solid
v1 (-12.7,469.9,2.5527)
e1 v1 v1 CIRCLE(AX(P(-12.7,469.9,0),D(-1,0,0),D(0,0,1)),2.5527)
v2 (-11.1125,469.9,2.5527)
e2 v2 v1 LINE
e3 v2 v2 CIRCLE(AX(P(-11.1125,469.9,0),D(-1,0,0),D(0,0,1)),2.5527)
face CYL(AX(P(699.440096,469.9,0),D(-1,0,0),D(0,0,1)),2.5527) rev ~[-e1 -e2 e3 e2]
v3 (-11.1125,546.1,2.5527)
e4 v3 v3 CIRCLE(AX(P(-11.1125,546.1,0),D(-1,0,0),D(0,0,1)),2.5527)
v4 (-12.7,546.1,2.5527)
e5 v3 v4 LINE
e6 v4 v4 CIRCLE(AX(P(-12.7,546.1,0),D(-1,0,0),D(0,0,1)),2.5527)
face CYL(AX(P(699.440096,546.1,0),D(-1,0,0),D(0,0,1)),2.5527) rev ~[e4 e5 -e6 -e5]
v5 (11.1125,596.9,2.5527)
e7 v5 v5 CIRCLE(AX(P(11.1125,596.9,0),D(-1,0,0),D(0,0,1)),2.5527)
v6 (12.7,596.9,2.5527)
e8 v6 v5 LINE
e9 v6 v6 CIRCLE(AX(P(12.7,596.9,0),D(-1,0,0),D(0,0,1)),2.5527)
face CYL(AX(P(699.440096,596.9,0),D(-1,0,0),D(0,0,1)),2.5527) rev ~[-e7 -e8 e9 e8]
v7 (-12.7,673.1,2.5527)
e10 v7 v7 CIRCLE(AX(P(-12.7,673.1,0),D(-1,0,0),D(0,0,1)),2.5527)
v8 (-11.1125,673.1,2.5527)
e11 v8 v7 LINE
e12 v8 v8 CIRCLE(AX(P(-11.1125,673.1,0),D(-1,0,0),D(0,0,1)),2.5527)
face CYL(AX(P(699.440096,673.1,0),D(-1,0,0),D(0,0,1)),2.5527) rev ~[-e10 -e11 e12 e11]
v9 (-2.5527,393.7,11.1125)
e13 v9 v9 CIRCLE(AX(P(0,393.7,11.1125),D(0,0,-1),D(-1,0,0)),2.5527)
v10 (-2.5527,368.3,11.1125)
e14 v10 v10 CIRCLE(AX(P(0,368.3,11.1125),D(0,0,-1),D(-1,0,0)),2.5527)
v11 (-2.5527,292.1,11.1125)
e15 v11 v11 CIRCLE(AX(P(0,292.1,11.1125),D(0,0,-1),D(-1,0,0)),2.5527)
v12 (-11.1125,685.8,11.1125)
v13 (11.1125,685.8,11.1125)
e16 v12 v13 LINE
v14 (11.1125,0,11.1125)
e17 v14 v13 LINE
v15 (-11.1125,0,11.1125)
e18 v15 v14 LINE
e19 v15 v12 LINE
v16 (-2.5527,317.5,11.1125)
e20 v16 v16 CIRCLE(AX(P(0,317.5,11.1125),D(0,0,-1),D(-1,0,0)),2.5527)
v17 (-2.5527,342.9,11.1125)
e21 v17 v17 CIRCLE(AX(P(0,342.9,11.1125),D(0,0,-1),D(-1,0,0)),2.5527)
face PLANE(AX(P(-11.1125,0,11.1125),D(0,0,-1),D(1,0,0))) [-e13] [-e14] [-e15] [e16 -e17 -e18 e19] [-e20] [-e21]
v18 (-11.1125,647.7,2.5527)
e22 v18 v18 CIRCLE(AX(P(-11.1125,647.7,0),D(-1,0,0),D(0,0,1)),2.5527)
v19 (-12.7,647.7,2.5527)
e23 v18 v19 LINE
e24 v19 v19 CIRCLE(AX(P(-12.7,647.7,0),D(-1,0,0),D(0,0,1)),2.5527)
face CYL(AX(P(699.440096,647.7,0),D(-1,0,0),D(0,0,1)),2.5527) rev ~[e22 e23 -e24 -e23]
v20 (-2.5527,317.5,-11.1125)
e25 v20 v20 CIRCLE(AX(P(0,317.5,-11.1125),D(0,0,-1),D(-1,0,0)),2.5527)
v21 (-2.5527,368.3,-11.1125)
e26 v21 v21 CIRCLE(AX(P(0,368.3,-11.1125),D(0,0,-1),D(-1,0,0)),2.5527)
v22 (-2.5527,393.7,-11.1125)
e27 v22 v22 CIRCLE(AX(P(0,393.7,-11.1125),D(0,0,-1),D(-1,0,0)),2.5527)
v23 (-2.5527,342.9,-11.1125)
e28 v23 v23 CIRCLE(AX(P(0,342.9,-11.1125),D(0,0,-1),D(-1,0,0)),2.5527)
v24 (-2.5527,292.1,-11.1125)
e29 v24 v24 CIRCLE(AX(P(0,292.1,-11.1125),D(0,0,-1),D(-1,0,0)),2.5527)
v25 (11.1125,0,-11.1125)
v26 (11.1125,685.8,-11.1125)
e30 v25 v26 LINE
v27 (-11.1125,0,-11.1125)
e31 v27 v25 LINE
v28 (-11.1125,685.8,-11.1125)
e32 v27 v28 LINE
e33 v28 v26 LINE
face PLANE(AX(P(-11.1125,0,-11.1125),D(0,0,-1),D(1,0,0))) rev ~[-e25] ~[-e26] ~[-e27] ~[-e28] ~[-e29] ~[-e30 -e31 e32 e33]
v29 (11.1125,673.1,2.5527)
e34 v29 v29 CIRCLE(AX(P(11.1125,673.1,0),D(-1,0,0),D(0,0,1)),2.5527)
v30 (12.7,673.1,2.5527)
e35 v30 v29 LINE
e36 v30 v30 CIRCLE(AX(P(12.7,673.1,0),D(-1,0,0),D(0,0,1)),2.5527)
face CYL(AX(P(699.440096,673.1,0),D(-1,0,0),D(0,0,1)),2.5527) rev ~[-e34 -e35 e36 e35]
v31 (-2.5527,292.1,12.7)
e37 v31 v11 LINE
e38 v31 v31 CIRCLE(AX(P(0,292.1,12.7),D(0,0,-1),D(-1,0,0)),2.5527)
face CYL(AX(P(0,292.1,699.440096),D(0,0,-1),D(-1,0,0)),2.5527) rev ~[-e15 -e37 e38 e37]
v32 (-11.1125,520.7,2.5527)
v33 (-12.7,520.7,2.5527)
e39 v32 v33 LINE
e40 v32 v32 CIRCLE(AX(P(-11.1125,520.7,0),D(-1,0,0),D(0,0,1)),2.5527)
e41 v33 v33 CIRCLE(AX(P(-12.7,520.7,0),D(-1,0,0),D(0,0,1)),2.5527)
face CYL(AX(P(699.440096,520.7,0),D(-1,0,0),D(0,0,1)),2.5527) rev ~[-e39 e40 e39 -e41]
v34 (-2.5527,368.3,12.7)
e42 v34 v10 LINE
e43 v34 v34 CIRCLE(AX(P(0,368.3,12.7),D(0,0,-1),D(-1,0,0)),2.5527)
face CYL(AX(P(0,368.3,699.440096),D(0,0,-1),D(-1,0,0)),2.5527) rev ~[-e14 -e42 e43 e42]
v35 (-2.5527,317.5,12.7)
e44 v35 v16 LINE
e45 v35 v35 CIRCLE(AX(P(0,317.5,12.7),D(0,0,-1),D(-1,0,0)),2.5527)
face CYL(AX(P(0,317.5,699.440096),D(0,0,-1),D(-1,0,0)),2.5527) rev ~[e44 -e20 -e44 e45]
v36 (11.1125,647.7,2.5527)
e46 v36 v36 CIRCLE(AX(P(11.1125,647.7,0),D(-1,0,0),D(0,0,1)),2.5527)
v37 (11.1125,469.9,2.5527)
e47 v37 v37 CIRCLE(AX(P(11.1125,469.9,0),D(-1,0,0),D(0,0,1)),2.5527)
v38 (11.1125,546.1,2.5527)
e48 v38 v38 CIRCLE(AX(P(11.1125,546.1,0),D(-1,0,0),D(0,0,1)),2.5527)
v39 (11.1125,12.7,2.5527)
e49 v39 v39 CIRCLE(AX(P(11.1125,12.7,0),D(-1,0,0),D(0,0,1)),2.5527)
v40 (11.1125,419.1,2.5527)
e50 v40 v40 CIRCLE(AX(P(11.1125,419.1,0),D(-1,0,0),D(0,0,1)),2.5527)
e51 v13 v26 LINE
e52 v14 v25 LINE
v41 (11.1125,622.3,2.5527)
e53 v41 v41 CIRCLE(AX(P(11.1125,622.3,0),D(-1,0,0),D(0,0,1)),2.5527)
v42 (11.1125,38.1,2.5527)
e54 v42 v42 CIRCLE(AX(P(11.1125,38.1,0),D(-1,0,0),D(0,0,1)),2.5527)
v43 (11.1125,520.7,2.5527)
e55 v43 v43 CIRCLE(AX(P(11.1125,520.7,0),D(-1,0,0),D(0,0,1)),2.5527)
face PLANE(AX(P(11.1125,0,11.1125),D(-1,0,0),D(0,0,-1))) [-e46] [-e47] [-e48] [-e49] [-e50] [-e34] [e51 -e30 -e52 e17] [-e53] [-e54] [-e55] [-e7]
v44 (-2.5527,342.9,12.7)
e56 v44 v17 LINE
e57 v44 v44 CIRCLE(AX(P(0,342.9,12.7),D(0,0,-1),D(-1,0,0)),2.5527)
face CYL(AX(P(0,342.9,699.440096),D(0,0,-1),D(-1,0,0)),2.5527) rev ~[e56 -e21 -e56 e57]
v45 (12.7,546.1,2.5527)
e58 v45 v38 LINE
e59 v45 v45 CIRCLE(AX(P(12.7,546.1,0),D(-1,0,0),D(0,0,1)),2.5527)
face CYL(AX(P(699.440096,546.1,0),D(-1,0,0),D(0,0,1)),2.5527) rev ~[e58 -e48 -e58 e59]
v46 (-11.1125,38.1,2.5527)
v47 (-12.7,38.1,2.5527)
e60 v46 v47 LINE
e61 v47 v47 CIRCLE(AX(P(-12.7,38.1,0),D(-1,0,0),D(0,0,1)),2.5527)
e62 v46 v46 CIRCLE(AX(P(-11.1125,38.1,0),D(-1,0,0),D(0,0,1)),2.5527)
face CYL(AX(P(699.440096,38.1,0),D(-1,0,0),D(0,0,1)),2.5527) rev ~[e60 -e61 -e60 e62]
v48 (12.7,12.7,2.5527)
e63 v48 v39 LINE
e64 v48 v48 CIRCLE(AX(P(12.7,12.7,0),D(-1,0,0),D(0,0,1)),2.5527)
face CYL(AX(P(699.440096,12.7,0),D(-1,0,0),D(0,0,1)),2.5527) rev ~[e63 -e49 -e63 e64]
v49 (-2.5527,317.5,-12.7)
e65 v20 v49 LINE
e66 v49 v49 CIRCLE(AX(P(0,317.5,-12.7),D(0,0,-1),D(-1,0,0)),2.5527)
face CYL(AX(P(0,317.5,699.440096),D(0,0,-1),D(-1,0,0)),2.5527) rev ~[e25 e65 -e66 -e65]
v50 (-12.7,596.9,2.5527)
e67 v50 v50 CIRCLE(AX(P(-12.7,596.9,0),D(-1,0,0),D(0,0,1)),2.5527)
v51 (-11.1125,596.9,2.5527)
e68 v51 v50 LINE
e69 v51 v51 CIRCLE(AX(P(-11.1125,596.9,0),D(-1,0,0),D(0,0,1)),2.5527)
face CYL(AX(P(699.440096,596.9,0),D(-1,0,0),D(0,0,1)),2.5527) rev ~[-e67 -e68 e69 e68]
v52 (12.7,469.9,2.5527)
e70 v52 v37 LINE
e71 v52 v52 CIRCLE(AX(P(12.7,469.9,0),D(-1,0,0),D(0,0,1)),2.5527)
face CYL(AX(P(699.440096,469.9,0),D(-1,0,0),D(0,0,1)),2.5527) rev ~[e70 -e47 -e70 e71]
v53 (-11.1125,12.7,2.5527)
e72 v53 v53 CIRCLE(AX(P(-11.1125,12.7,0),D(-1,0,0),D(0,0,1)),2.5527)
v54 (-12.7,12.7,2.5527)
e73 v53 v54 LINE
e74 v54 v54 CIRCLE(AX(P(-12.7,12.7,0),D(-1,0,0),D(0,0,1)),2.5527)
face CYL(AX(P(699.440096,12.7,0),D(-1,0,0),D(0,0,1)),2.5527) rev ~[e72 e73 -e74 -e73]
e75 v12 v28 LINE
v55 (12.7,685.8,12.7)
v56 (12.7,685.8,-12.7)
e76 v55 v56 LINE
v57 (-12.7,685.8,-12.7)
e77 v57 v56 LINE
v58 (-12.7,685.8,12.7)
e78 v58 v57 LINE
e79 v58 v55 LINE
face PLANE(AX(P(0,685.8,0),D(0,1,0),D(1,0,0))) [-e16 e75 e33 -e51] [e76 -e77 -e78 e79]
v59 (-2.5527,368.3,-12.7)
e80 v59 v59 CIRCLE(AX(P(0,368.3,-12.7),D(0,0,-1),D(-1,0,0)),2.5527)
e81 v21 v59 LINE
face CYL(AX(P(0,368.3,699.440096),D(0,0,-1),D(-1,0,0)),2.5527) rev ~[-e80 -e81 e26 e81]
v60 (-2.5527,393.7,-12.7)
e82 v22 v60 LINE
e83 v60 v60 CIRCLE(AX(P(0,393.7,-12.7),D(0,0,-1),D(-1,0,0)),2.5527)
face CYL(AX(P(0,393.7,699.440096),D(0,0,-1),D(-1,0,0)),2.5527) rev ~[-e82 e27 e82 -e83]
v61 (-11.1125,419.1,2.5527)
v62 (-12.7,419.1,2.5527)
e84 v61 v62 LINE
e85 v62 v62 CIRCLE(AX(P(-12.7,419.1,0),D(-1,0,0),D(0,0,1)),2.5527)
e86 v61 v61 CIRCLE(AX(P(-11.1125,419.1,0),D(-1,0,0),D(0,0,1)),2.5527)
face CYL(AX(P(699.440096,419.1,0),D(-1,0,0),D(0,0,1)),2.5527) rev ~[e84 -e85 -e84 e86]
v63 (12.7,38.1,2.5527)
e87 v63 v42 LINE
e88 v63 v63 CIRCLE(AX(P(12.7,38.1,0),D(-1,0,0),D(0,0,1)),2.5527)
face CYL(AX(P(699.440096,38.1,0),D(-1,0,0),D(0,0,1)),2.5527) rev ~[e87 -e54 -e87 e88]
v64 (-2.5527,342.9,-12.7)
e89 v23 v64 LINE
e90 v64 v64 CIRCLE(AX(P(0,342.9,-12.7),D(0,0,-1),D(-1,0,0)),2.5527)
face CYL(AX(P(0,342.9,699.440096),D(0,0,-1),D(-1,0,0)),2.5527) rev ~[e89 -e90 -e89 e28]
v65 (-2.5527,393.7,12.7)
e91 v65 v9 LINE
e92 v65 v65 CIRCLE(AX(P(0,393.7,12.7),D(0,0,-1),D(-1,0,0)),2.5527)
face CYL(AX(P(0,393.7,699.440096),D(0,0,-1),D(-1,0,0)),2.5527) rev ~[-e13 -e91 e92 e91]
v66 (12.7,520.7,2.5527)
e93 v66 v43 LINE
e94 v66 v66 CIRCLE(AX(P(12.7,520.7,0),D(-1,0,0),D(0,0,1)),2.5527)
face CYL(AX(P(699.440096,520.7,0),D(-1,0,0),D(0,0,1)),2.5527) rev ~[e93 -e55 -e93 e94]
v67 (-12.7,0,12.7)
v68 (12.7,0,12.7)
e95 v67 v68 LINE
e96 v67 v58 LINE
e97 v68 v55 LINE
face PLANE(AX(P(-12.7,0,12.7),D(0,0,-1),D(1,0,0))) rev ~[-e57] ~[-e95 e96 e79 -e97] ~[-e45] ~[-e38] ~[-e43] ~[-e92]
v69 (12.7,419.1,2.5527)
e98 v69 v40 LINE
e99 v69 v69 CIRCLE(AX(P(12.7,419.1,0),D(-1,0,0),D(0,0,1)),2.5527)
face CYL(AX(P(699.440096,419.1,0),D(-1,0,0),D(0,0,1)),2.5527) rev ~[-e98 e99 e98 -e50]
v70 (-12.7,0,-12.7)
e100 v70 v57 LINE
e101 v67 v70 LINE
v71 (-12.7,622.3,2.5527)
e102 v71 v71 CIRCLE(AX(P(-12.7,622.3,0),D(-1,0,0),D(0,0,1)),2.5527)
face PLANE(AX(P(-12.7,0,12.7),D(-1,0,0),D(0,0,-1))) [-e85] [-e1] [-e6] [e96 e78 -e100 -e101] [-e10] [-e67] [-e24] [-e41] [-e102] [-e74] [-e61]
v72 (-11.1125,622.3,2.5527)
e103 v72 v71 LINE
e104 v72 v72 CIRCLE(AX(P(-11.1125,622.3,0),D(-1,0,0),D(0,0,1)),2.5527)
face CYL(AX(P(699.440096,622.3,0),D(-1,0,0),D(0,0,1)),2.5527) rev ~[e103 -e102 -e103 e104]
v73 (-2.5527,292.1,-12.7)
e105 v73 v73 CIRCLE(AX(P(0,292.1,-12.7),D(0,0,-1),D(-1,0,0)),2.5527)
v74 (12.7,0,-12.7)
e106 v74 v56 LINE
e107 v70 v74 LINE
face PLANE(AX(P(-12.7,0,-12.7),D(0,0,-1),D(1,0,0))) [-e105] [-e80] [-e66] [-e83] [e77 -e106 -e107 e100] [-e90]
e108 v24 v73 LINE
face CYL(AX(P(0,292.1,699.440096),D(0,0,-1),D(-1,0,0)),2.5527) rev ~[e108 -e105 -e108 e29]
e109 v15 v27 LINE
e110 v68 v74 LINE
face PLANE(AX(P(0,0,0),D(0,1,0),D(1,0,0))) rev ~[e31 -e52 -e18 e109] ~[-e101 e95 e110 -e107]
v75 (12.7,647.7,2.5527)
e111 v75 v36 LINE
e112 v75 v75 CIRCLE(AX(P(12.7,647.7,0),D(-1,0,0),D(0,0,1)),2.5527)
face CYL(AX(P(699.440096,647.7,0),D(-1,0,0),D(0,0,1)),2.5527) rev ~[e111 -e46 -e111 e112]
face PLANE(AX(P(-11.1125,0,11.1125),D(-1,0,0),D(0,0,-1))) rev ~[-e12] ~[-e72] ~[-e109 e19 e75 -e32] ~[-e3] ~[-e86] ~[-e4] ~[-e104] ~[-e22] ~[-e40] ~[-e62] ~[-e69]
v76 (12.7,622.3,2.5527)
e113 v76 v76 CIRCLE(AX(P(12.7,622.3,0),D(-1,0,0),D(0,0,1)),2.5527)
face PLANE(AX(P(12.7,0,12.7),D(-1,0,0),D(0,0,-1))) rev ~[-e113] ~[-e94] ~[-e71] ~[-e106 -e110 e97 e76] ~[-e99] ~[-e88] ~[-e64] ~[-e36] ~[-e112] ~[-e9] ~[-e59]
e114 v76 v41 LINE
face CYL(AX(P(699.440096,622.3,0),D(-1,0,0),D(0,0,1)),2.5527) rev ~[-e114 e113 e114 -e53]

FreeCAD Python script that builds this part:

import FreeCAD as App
import Part
import Sketcher
from FreeCAD import Vector
Q = App.Units.Quantity

doc = App.newDocument("Part")
body = doc.addObject("PartDesign::Body", "Body")

# Sketch on XZ plane
sketch1 = doc.addObject("Sketcher::SketchObject", "Sketch")
body.addObject(sketch1)
sketch1.AttachmentSupport = (doc.XZ_Plane, [""])
sketch1.MapMode = "FlatFace"
sketch1.addGeometry([
    Part.LineSegment(Vector(-12.7, -12.7, 0), Vector(-12.7, 12.7, 0)),  # 0
    Part.LineSegment(Vector(-12.7, 12.7, 0), Vector(12.7, 12.7, 0)),  # 1
    Part.LineSegment(Vector(12.7, 12.7, 0), Vector(12.7, -12.7, 0)),  # 2
    Part.LineSegment(Vector(12.7, -12.7, 0), Vector(-12.7, -12.7, 0)),  # 3
    Part.LineSegment(Vector(11.1125, 11.1125, 0), Vector(-11.1125, 11.1125, 0)),  # 4
    Part.LineSegment(Vector(-11.1125, 11.1125, 0), Vector(-11.1125, -11.1125, 0)),  # 5
    Part.LineSegment(Vector(-11.1125, -11.1125, 0), Vector(11.1125, -11.1125, 0)),  # 6
    Part.LineSegment(Vector(11.1125, -11.1125, 0), Vector(11.1125, 11.1125, 0)),  # 7
], False)
sketch1.addConstraint([
    Sketcher.Constraint("Coincident", 0, 2, 1, 1),
    Sketcher.Constraint("Coincident", 1, 2, 2, 1),
    Sketcher.Constraint("Coincident", 2, 2, 3, 1),
    Sketcher.Constraint("Coincident", 3, 2, 0, 1),
    Sketcher.Constraint("Coincident", 4, 2, 5, 1),
    Sketcher.Constraint("Coincident", 5, 2, 6, 1),
    Sketcher.Constraint("Coincident", 6, 2, 7, 1),
    Sketcher.Constraint("Coincident", 7, 2, 4, 1),
    Sketcher.Constraint("Vertical", 0),
    Sketcher.Constraint("Horizontal", 1),
    Sketcher.Constraint("Vertical", 2),
    Sketcher.Constraint("Horizontal", 3),
    Sketcher.Constraint("Horizontal", 4),
    Sketcher.Constraint("Vertical", 5),
    Sketcher.Constraint("Horizontal", 6),
    Sketcher.Constraint("Vertical", 7),
    Sketcher.Constraint("Symmetric", 0, 2, 2, 2, -1, 1),
    Sketcher.Constraint("Symmetric", 4, 2, 6, 2, -1, 1),
    Sketcher.Constraint("Equal", 3, 0),
    Sketcher.Constraint("Equal", 6, 5),
    Sketcher.Constraint("DistanceX", 1, 1, 1, 2, Q("1 in")),
    Sketcher.Constraint("DistanceX", 4, 2, 4, 1, Q("0.875 in")),
])
pad1 = doc.addObject("PartDesign::Pad", "Pad")
body.addObject(pad1)
pad1.Profile = sketch1
pad1.Length = Q("27 in")
pad1.Reversed = True

# Sketch on XY plane
sketch2 = doc.addObject("Sketcher::SketchObject", "Sketch001")
body.addObject(sketch2)
sketch2.AttachmentSupport = (doc.XY_Plane, [""])
sketch2.MapMode = "FlatFace"
sketch2.AttachmentOffset = App.Placement(Vector(0, 0, 0.5 * 25.4), App.Rotation())
sketch2.addGeometry([
    Part.Circle(Vector(0, 292.1, 0), Vector(0, 0, 1), 2.5527),  # 0
    Part.Circle(Vector(0, 317.5, 0), Vector(0, 0, 1), 2.5527),  # 1
    Part.Circle(Vector(0, 342.9, 0), Vector(0, 0, 1), 2.5527),  # 2
    Part.Circle(Vector(0, 368.3, 0), Vector(0, 0, 1), 2.5527),  # 3
    Part.Circle(Vector(0, 393.7, 0), Vector(0, 0, 1), 2.5527),  # 4
], False)
sketch2.addConstraint([
    Sketcher.Constraint("Equal", 0, 1),
    Sketcher.Constraint("Equal", 1, 2),
    Sketcher.Constraint("Equal", 2, 3),
    Sketcher.Constraint("Equal", 3, 4),
    Sketcher.Constraint("PointOnObject", 0, 3, -2),
    Sketcher.Constraint("PointOnObject", 1, 3, -2),
    Sketcher.Constraint("PointOnObject", 2, 3, -2),
    Sketcher.Constraint("PointOnObject", 3, 3, -2),
    Sketcher.Constraint("PointOnObject", 4, 3, -2),
    Sketcher.Constraint("Diameter", 0, Q("0.201 in")),
    Sketcher.Constraint("DistanceY", 0, 3, 1, 3, Q("1 in")),
    Sketcher.Constraint("DistanceY", 1, 3, 2, 3, Q("1 in")),
    Sketcher.Constraint("DistanceY", 2, 3, 3, 3, Q("1 in")),
    Sketcher.Constraint("DistanceY", 3, 3, 4, 3, Q("1 in")),
    Sketcher.Constraint("DistanceY", -1, 1, 0, 3, Q("11.5 in")),
])
doc.recompute()
hole = doc.addObject("PartDesign::Hole", "Hole")
body.addObject(hole)
hole.Profile = sketch2
hole.ThreadType = "None"
hole.Diameter = Q("0.201 in")
hole.DepthType = "ThroughAll"

# Sketch on YZ plane
sketch3 = doc.addObject("Sketcher::SketchObject", "Sketch002")
body.addObject(sketch3)
sketch3.AttachmentSupport = (doc.YZ_Plane, [""])
sketch3.MapMode = "FlatFace"
sketch3.AttachmentOffset = App.Placement(Vector(0, 0, 0.5 * 25.4), App.Rotation())
sketch3.addGeometry([
    Part.Circle(Vector(12.7, 0, 0), Vector(0, 0, 1), 2.5527),  # 0
    Part.Circle(Vector(38.1, 0, 0), Vector(0, 0, 1), 2.5527),  # 1
    Part.Circle(Vector(622.3, 0, 0), Vector(0, 0, 1), 2.5527),  # 2
    Part.Circle(Vector(647.7, 0, 0), Vector(0, 0, 1), 2.5527),  # 3
    Part.Circle(Vector(673.1, 0, 0), Vector(0, 0, 1), 2.5527),  # 4
    Part.Circle(Vector(596.9, 0, 0), Vector(0, 0, 1), 2.5527),  # 5
    Part.Circle(Vector(546.1, 0, 0), Vector(0, 0, 1), 2.5527),  # 6
    Part.Circle(Vector(520.7, 0, 0), Vector(0, 0, 1), 2.5527),  # 7
    Part.Circle(Vector(469.9, 0, 0), Vector(0, 0, 1), 2.5527),  # 8
    Part.Circle(Vector(419.1, 0, 0), Vector(0, 0, 1), 2.5527),  # 9
], False)
sketch3.addConstraint([
    Sketcher.Constraint("Equal", 0, 1),
    Sketcher.Constraint("Equal", 1, 2),
    Sketcher.Constraint("Equal", 2, 3),
    Sketcher.Constraint("Equal", 3, 4),
    Sketcher.Constraint("Equal", 4, 5),
    Sketcher.Constraint("Equal", 5, 6),
    Sketcher.Constraint("Equal", 6, 7),
    Sketcher.Constraint("Equal", 7, 8),
    Sketcher.Constraint("Equal", 8, 9),
    Sketcher.Constraint("PointOnObject", 0, 3, -1),
    Sketcher.Constraint("PointOnObject", 1, 3, -1),
    Sketcher.Constraint("PointOnObject", 2, 3, -1),
    Sketcher.Constraint("PointOnObject", 3, 3, -1),
    Sketcher.Constraint("PointOnObject", 4, 3, -1),
    Sketcher.Constraint("PointOnObject", 5, 3, -1),
    Sketcher.Constraint("PointOnObject", 6, 3, -1),
    Sketcher.Constraint("PointOnObject", 7, 3, -1),
    Sketcher.Constraint("PointOnObject", 8, 3, -1),
    Sketcher.Constraint("PointOnObject", 9, 3, -1),
    Sketcher.Constraint("Diameter", 0, Q("0.201 in")),
    Sketcher.Constraint("DistanceX", 0, 3, 1, 3, Q("1 in")),
    Sketcher.Constraint("DistanceX", 1, 3, 2, 3, Q("23 in")),
    Sketcher.Constraint("DistanceX", 2, 3, 3, 3, Q("1 in")),
    Sketcher.Constraint("DistanceX", 3, 3, 4, 3, Q("1 in")),
    Sketcher.Constraint("DistanceX", 5, 3, 2, 3, Q("1 in")),
    Sketcher.Constraint("DistanceX", 6, 3, 5, 3, Q("2 in")),
    Sketcher.Constraint("DistanceX", 7, 3, 6, 3, Q("1 in")),
    Sketcher.Constraint("DistanceX", 8, 3, 7, 3, Q("2 in")),
    Sketcher.Constraint("DistanceX", 9, 3, 8, 3, Q("2 in")),
    Sketcher.Constraint("DistanceX", -1, 1, 0, 3, Q("0.5 in")),
])
doc.recompute()
hole2 = doc.addObject("PartDesign::Hole", "Hole001")
body.addObject(hole2)
hole2.Profile = sketch3
hole2.ThreadType = "None"
hole2.Diameter = Q("0.201 in")
hole2.DepthType = "ThroughAll"

doc.recompute()
